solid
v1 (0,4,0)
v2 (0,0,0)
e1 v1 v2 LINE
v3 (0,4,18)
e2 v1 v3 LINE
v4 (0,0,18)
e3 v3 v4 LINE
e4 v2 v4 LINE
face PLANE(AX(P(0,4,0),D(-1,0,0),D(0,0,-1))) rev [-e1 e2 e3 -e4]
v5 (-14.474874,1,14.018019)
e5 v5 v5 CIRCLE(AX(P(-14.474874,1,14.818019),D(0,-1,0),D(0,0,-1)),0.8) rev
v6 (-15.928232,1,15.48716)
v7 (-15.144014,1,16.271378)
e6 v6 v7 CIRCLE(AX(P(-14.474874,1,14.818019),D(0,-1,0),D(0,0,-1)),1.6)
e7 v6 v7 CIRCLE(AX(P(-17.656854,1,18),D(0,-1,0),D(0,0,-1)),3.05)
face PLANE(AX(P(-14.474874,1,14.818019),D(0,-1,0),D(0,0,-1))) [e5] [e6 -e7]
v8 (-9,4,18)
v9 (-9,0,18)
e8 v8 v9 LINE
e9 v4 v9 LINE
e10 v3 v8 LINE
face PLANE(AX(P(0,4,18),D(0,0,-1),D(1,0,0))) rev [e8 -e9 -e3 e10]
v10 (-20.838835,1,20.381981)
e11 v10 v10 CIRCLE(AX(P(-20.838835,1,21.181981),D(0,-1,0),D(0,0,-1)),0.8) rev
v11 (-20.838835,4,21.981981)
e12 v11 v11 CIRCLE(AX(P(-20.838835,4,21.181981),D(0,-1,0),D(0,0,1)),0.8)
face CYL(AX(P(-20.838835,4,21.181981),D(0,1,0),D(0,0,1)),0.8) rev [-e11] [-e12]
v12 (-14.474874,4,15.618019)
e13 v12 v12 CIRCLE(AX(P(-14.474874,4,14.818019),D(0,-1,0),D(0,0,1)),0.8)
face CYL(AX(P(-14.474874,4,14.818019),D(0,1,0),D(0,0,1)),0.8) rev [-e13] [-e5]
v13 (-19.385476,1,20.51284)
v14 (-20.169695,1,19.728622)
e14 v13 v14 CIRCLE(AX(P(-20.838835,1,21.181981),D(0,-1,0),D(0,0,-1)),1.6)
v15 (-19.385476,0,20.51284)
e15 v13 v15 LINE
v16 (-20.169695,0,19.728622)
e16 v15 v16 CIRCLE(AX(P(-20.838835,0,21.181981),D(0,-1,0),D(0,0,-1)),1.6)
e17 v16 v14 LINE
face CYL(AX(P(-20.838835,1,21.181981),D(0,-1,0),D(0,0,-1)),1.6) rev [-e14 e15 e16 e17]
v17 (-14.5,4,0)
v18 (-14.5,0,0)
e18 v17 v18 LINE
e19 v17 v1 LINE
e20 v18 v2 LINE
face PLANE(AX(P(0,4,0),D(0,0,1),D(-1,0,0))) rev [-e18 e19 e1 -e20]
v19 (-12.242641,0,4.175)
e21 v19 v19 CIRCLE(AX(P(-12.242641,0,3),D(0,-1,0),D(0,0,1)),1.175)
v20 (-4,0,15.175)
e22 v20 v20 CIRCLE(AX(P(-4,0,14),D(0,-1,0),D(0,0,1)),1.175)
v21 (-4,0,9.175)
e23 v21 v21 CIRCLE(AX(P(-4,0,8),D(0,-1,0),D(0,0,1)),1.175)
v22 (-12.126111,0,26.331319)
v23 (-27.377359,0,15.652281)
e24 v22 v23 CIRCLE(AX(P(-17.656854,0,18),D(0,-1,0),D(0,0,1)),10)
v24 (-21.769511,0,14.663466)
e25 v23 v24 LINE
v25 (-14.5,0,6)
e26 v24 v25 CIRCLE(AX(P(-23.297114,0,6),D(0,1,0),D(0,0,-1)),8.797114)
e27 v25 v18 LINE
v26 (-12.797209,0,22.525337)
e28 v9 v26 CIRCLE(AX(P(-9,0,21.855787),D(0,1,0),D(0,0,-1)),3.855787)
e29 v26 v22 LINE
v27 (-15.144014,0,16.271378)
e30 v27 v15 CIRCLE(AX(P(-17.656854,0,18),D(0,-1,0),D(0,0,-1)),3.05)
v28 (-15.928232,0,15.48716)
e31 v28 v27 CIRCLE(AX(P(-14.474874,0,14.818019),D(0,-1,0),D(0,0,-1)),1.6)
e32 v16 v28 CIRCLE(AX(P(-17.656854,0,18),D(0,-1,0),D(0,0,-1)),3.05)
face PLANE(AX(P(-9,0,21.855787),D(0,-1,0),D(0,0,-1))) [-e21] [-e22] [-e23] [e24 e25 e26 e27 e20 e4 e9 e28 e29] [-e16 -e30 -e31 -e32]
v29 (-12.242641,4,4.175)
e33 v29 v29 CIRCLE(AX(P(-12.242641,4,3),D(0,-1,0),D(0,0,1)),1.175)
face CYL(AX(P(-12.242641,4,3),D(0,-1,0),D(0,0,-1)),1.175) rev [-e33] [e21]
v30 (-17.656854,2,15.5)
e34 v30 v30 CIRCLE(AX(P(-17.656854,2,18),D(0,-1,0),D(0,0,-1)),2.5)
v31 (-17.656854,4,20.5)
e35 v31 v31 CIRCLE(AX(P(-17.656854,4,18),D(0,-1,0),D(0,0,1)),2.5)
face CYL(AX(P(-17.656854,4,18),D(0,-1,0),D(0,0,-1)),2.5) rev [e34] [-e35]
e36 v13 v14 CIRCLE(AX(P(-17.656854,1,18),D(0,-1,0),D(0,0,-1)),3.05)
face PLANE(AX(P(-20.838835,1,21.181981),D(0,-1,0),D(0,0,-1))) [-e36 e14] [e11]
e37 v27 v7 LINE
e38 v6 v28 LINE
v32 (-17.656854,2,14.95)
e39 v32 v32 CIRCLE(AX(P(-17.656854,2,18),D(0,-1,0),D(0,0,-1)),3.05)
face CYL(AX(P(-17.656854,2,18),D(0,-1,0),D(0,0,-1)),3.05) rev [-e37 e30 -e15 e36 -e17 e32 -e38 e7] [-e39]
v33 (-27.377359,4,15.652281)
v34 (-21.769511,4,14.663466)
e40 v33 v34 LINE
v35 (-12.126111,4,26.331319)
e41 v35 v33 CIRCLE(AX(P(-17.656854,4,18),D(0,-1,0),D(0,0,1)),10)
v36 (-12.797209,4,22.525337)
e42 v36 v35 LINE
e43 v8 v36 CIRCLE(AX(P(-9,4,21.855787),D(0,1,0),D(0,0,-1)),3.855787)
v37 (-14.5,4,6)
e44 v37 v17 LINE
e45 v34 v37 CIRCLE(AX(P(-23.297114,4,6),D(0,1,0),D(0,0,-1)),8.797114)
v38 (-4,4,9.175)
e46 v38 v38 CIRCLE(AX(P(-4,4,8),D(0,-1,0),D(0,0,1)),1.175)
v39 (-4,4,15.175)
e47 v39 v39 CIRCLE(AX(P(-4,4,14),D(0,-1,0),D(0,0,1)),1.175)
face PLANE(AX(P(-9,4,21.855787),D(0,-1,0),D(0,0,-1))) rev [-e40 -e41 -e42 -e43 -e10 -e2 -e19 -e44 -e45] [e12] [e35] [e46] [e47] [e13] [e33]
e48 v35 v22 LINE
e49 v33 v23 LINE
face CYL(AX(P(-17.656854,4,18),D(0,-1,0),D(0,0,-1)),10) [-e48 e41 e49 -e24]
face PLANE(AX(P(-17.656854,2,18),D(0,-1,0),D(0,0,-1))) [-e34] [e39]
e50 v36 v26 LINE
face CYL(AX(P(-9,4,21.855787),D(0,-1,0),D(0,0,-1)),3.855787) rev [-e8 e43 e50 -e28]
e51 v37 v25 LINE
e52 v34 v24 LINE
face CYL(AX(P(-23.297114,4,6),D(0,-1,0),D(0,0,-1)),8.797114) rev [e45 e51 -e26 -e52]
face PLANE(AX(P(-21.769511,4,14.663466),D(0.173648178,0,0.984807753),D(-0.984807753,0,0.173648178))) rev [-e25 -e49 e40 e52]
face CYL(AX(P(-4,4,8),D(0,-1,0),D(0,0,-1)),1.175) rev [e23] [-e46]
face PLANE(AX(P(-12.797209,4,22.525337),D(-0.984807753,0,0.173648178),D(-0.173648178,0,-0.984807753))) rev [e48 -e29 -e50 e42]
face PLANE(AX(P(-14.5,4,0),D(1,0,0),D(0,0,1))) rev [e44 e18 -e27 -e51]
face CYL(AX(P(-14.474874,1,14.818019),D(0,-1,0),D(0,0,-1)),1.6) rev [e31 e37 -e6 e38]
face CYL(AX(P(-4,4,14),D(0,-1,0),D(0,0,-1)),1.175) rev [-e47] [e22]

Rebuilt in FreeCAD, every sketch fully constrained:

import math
import FreeCAD as App
import Part
import Sketcher
from FreeCAD import Vector
Q = App.Units.Quantity

doc = App.newDocument("Part")
params = doc.addObject("Spreadsheet::Sheet", "Params")
for row, (alias, value) in enumerate([
    ("sketch1_diameter", "5 mm"),
    ("sketch1_radius", "10 mm"),
    ("sketch1_diameter2", "2.35 mm"),
    ("sketch1_width", "9 mm"),
    ("sketch1_height", "18 mm"),
    ("pad1_length", "4 mm"),
    ("sketch2_diameter", "1.6 mm"),
    ("hole_diameter", "1.6 mm"),
    ("sketch3_diameter", "3.2 mm"),
    ("pocket1_length", "1 mm"),
    ("sketch4_diameter", "6.1 mm"),
    ("pocket2_length", "2 mm"),
], start=1):
    params.set(f"A{row}", alias)
    params.set(f"B{row}", "=" + value)
    params.setAlias(f"B{row}", alias)

body = doc.addObject("PartDesign::Body", "Body")

sketch1 = body.newObject("Sketcher::SketchObject", "Sketch")
sketch1.AttachmentSupport = (doc.getObject("XZ_Plane"), [""])
sketch1.MapMode = "FlatFace"
sketch1.addGeometry(Part.LineSegment(Vector(14.5, 0, 0), Vector(0, 0, 0)), False)
sketch1.addGeometry(Part.LineSegment(Vector(0, 0, 0), Vector(0, 18, 0)), False)
sketch1.addGeometry(Part.LineSegment(Vector(0, 18, 0), Vector(9, 18, 0)), False)
sketch1.addGeometry(Part.ArcOfCircle(Part.Circle(Vector(9, 21.9, 0), Vector(0, 0, 1), 3.9), math.radians(-90), math.radians(10)), False)
sketch1.addGeometry(Part.LineSegment(Vector(12.8, 22.5, 0), Vector(12.1, 26.3, 0)), False)
sketch1.addGeometry(Part.ArcOfCircle(Part.Circle(Vector(17.7, 18, 0), Vector(0, 0, 1), 10), math.radians(-14), math.radians(124)), False)
sketch1.addGeometry(Part.LineSegment(Vector(27.4, 15.7, 0), Vector(21.8, 14.7, 0)), False)
sketch1.addGeometry(Part.ArcOfCircle(Part.Circle(Vector(23.3, 6, 0), Vector(0, 0, 1), 8.8), math.radians(100), math.radians(180)), False)
sketch1.addGeometry(Part.LineSegment(Vector(14.5, 6, 0), Vector(14.5, 0, 0)), False)
sketch1.addGeometry(Part.Circle(Vector(17.7, 18, 0), Vector(0, 0, 1), 2.5), False)
sketch1.addGeometry(Part.Circle(Vector(4, 14, 0), Vector(0, 0, 1), 1.2), False)
sketch1.addGeometry(Part.Circle(Vector(12.2, 3, 0), Vector(0, 0, 1), 1.2), False)
sketch1.addGeometry(Part.Circle(Vector(4, 8, 0), Vector(0, 0, 1), 1.2), False)
sketch1.addConstraint(Sketcher.Constraint("Coincident", 0, 2, 1, 1))
sketch1.addConstraint(Sketcher.Constraint("Coincident", 1, 2, 2, 1))
sketch1.addConstraint(Sketcher.Constraint("Tangent", 2, 2, 3, 1))
sketch1.addConstraint(Sketcher.Constraint("Tangent", 3, 2, 4, 1))
sketch1.addConstraint(Sketcher.Constraint("Coincident", 4, 2, 5, 2))
sketch1.addConstraint(Sketcher.Constraint("Coincident", 5, 1, 6, 1))
sketch1.addConstraint(Sketcher.Constraint("Tangent", 6, 2, 7, 1))
sketch1.addConstraint(Sketcher.Constraint("Tangent", 7, 2, 8, 1))
sketch1.addConstraint(Sketcher.Constraint("Coincident", 8, 2, 0, 1))
sketch1.addConstraint(Sketcher.Constraint("Horizontal", 0))
sketch1.addConstraint(Sketcher.Constraint("Vertical", 1))
sketch1.addConstraint(Sketcher.Constraint("Horizontal", 2))
sketch1.addConstraint(Sketcher.Constraint("Vertical", 8))
sketch1.addConstraint(Sketcher.Constraint("Coincident", 0, 2, -1, 1))
sketch1.addConstraint(Sketcher.Constraint("Coincident", 9, 3, 5, 3))
sketch1.addConstraint(Sketcher.Constraint("Equal", 10, 11))
sketch1.addConstraint(Sketcher.Constraint("Equal", 11, 12))
sketch1.addConstraint(Sketcher.Constraint("Perpendicular", 4, 6))
sketch1.addConstraint(Sketcher.Constraint("Horizontal", 9, 3, 1, 2))
sketch1.addConstraint(Sketcher.Constraint("Vertical", 10, 3, 12, 3))
sketch1.addConstraint(Sketcher.Constraint("Diameter", 9, 5.0))
sketch1.addConstraint(Sketcher.Constraint("Radius", 5, 10.0))
sketch1.addConstraint(Sketcher.Constraint("Diameter", 10, 2.35))
sketch1.addConstraint(Sketcher.Constraint("DistanceX", 2, 1, 2, 2, 9.0))
sketch1.addConstraint(Sketcher.Constraint("DistanceY", 1, 1, 1, 2, 18.0))
sketch1.addConstraint(Sketcher.Constraint("DistanceY", 8, 2, 8, 1, 6.0))
sketch1.addConstraint(Sketcher.Constraint("Angle", 4, Q("100 deg")))
sketch1.addConstraint(Sketcher.Constraint("DistanceX", 0, 2, 0, 1, 14.5))
sketch1.addConstraint(Sketcher.Constraint("DistanceX", -1, 1, 10, 3, 4.0))
sketch1.addConstraint(Sketcher.Constraint("DistanceY", -1, 1, 10, 3, 14.0))
sketch1.addConstraint(Sketcher.Constraint("DistanceY", -1, 1, 11, 3, 3.0))
sketch1.addConstraint(Sketcher.Constraint("DistanceY", -1, 1, 12, 3, 8.0))
sketch1.addConstraint(Sketcher.Constraint("Radius", 3, 3.855787))
sketch1.addConstraint(Sketcher.Constraint("Radius", 7, 8.797114))
sketch1.addConstraint(Sketcher.Constraint("Distance", 6, 5.694358))
sketch1.addConstraint(Sketcher.Constraint("DistanceX", -1, 1, 11, 3, 12.242641))
sketch1.setExpression("Constraints[20]", "Params.sketch1_diameter")
sketch1.setExpression("Constraints[21]", "Params.sketch1_radius")
sketch1.setExpression("Constraints[22]", "Params.sketch1_diameter2")
sketch1.setExpression("Constraints[23]", "Params.sketch1_width")
sketch1.setExpression("Constraints[24]", "Params.sketch1_height")
pad1 = body.newObject("PartDesign::Pad", "Pad")
pad1.Profile = sketch1
pad1.setExpression("Length", "Params.pad1_length")
pad1.Reversed = True

sketch2 = body.newObject("Sketcher::SketchObject", "Sketch001")
sketch2.AttachmentSupport = (doc.getObject("XZ_Plane"), [""])
sketch2.MapMode = "FlatFace"
sketch2.AttachmentOffset = App.Placement(Vector(0, 0, -4), App.Rotation())
sketch2.addGeometry(Part.Circle(Vector(20.8, 21.2, 0), Vector(0, 0, 1), 0.8), False)
sketch2.addGeometry(Part.Circle(Vector(14.5, 14.8, 0), Vector(0, 0, 1), 0.8), False)
sketch2.addConstraint(Sketcher.Constraint("Equal", 0, 1))
sketch2.addConstraint(Sketcher.Constraint("Diameter", 0, 1.6))
sketch2.addConstraint(Sketcher.Constraint("DistanceY", -1, 1, 0, 3, 21.181981))
sketch2.addConstraint(Sketcher.Constraint("DistanceY", -1, 1, 1, 3, 14.818019))
sketch2.addConstraint(Sketcher.Constraint("DistanceX", 1, 3, 0, 3, 6.363961))
sketch2.addConstraint(Sketcher.Constraint("DistanceX", -1, 1, 0, 3, 20.838835))
sketch2.setExpression("Constraints[1]", "Params.sketch2_diameter")
doc.recompute()
hole = body.newObject("PartDesign::Hole", "Hole")
hole.Profile = sketch2
hole.ThreadType = "None"
hole.setExpression("Diameter", "Params.hole_diameter")
hole.DepthType = "ThroughAll"
hole.Reversed = True
body2 = doc.addObject("PartDesign::Body", "Body001")
doc.recompute()

mirroring = doc.addObject("Part::Mirroring", "Mirroring")
mirroring.Source = body
mirroring.Base = Vector(0, 4, 0)
mirroring.Normal = Vector(1, 0, 0)
body2.BaseFeature = mirroring
doc.recompute()

sketch3 = body2.newObject("Sketcher::SketchObject", "Sketch002")
sketch3.AttachmentSupport = (doc.getObject("XZ_Plane001"), [""])
sketch3.MapMode = "FlatFace"
sketch3.addGeometry(Part.Circle(Vector(-14.5, 14.8, 0), Vector(0, 0, 1), 1.6), False)
sketch3.addGeometry(Part.Circle(Vector(-20.8, 21.2, 0), Vector(0, 0, 1), 1.6), False)
sketch3.addConstraint(Sketcher.Constraint("Equal", 0, 1))
sketch3.addConstraint(Sketcher.Constraint("Diameter", 0, 3.2))
sketch3.addConstraint(Sketcher.Constraint("DistanceY", -1, 1, 0, 3, 14.818019))
sketch3.addConstraint(Sketcher.Constraint("DistanceY", -1, 1, 1, 3, 21.181981))
sketch3.addConstraint(Sketcher.Constraint("DistanceX", 1, 3, 0, 3, 6.363961))
sketch3.addConstraint(Sketcher.Constraint("DistanceX", 0, 3, -1, 1, 14.474874))
sketch3.setExpression("Constraints[1]", "Params.sketch3_diameter")
pocket1 = body2.newObject("PartDesign::Pocket", "Pocket")
pocket1.Profile = sketch3
pocket1.setExpression("Length", "Params.pocket1_length")

sketch4 = body2.newObject("Sketcher::SketchObject", "Sketch003")
sketch4.AttachmentSupport = (doc.getObject("XZ_Plane001"), [""])
sketch4.MapMode = "FlatFace"
sketch4.addGeometry(Part.Circle(Vector(-17.7, 18, 0), Vector(0, 0, 1), 3), False)
sketch4.addConstraint(Sketcher.Constraint("Diameter", 0, 6.1))
sketch4.addConstraint(Sketcher.Constraint("DistanceY", -1, 1, 0, 3, 18.0))
sketch4.addConstraint(Sketcher.Constraint("DistanceX", 0, 3, -1, 1, 17.656854))
sketch4.setExpression("Constraints[0]", "Params.sketch4_diameter")
pocket2 = body2.newObject("PartDesign::Pocket", "Pocket001")
pocket2.Profile = sketch4
pocket2.setExpression("Length", "Params.pocket2_length")
body.Visibility = False
mirroring.Visibility = False

doc.recompute()
